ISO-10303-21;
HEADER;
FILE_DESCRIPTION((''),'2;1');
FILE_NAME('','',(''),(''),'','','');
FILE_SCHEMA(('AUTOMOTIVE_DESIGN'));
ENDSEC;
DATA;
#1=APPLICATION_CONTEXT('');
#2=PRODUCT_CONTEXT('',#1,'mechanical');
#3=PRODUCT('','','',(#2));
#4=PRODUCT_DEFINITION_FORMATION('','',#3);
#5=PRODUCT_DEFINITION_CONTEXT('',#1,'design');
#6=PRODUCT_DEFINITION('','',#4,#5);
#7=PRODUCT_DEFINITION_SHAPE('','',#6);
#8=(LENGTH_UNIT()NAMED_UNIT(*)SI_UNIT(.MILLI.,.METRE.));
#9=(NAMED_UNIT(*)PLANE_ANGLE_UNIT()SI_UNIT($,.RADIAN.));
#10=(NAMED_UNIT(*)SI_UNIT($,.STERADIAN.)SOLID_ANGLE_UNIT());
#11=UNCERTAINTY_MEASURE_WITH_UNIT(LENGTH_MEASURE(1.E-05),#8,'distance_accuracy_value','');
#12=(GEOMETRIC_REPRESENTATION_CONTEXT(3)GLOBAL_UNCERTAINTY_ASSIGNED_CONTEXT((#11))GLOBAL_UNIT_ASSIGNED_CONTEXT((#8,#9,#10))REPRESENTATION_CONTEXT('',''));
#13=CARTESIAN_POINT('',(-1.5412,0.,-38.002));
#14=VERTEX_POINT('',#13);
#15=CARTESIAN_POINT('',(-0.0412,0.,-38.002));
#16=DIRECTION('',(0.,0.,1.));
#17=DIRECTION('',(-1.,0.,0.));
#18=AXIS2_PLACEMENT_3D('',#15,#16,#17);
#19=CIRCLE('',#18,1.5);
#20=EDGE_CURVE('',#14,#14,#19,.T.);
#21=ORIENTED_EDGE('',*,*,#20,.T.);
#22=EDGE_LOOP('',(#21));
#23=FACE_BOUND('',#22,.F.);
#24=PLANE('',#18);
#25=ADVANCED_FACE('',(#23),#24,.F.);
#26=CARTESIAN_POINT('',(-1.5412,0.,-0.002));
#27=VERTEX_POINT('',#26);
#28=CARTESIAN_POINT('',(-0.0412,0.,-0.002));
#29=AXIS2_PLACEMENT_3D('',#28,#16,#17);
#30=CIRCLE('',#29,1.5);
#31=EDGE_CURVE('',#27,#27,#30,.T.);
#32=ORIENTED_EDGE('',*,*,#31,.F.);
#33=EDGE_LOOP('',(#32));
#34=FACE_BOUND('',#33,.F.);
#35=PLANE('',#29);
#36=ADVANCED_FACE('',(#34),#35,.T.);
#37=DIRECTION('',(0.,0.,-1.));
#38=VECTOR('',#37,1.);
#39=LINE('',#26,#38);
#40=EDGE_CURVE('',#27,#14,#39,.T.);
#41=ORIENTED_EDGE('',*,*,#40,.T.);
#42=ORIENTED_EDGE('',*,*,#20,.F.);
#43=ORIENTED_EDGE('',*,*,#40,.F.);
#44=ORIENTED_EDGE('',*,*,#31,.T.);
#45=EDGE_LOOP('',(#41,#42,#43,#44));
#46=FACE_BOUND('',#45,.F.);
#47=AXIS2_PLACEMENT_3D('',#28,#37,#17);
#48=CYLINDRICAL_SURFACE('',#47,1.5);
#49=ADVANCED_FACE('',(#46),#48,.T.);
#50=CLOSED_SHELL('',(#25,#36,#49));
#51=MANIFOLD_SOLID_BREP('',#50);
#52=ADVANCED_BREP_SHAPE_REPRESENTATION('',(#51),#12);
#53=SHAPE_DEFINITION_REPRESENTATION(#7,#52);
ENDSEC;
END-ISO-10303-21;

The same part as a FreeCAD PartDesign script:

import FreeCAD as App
import Part
import Sketcher

V = App.Vector


def add_polygon(sketch, points):
    """Adds a closed chain of lines whose ends are joined by coincident constraints."""
    first, n = sketch.GeometryCount, len(points)
    for a, b in zip(points, points[1:] + points[:1]):
        sketch.addGeometry(Part.LineSegment(App.Vector(*a, 0), App.Vector(*b, 0)), False)
    for i in range(n):
        sketch.addConstraint(Sketcher.Constraint("Coincident", first + i, 2, first + (i + 1) % n, 1))

doc = App.newDocument("Part")
params = doc.addObject("Spreadsheet::Sheet", "Params")
for row, (alias, value) in enumerate([
    ("sketch1_height", "38 mm"),
    ("sketch1_width", "1.5 mm"),
    ("revolution_angle", "360 deg"),
], start=1):
    params.set(f"A{row}", alias)
    params.set(f"B{row}", "=" + value)
    params.setAlias(f"B{row}", alias)

body = doc.addObject("PartDesign::Body", "Body")

# Sketch on XZ plane
sketch1 = body.newObject("Sketcher::SketchObject", "Sketch")
sketch1.AttachmentSupport = (doc.getObject("XZ_Plane"), [""])
sketch1.MapMode = "FlatFace"
add_polygon(sketch1, [(-1.5412, -0.002), (-0.0412, -0.002), (-0.0412, -38.002), (-1.5412, -38.002)])  # lines 0-3
sketch1.addGeometry(Part.LineSegment(V(-0.0412, -38.002, 0), V(-0.0412, -0.002, 0)), True)  # axis
sketch1.addConstraint(Sketcher.Constraint("Horizontal", 0))
sketch1.addConstraint(Sketcher.Constraint("Vertical", 1))
sketch1.addConstraint(Sketcher.Constraint("Horizontal", 2))
sketch1.addConstraint(Sketcher.Constraint("Vertical", 3))
sketch1.addConstraint(Sketcher.Constraint("Vertical", 4))
sketch1.addConstraint(Sketcher.Constraint("Coincident", 4, 1, 1, 2))
sketch1.addConstraint(Sketcher.Constraint("Horizontal", 3, 2, 4, 2))
sketch1.addConstraint(Sketcher.Constraint("DistanceY", 1, 2, 1, 1, 38.0))
sketch1.addConstraint(Sketcher.Constraint("DistanceX", 0, 1, 0, 2, 1.5))
sketch1.addConstraint(Sketcher.Constraint("DistanceY", 0, 2, -1, 1, 0.002))
sketch1.addConstraint(Sketcher.Constraint("DistanceX", 0, 2, -1, 1, 0.0412))
sketch1.setExpression("Constraints[11]", "Params.sketch1_height")
sketch1.setExpression("Constraints[12]", "Params.sketch1_width")
revolution = body.newObject("PartDesign::Revolution", "Revolution")
revolution.Profile = sketch1
revolution.ReferenceAxis = (sketch1, ["Axis0"])
revolution.setExpression("Angle", "Params.revolution_angle")

doc.recompute()
